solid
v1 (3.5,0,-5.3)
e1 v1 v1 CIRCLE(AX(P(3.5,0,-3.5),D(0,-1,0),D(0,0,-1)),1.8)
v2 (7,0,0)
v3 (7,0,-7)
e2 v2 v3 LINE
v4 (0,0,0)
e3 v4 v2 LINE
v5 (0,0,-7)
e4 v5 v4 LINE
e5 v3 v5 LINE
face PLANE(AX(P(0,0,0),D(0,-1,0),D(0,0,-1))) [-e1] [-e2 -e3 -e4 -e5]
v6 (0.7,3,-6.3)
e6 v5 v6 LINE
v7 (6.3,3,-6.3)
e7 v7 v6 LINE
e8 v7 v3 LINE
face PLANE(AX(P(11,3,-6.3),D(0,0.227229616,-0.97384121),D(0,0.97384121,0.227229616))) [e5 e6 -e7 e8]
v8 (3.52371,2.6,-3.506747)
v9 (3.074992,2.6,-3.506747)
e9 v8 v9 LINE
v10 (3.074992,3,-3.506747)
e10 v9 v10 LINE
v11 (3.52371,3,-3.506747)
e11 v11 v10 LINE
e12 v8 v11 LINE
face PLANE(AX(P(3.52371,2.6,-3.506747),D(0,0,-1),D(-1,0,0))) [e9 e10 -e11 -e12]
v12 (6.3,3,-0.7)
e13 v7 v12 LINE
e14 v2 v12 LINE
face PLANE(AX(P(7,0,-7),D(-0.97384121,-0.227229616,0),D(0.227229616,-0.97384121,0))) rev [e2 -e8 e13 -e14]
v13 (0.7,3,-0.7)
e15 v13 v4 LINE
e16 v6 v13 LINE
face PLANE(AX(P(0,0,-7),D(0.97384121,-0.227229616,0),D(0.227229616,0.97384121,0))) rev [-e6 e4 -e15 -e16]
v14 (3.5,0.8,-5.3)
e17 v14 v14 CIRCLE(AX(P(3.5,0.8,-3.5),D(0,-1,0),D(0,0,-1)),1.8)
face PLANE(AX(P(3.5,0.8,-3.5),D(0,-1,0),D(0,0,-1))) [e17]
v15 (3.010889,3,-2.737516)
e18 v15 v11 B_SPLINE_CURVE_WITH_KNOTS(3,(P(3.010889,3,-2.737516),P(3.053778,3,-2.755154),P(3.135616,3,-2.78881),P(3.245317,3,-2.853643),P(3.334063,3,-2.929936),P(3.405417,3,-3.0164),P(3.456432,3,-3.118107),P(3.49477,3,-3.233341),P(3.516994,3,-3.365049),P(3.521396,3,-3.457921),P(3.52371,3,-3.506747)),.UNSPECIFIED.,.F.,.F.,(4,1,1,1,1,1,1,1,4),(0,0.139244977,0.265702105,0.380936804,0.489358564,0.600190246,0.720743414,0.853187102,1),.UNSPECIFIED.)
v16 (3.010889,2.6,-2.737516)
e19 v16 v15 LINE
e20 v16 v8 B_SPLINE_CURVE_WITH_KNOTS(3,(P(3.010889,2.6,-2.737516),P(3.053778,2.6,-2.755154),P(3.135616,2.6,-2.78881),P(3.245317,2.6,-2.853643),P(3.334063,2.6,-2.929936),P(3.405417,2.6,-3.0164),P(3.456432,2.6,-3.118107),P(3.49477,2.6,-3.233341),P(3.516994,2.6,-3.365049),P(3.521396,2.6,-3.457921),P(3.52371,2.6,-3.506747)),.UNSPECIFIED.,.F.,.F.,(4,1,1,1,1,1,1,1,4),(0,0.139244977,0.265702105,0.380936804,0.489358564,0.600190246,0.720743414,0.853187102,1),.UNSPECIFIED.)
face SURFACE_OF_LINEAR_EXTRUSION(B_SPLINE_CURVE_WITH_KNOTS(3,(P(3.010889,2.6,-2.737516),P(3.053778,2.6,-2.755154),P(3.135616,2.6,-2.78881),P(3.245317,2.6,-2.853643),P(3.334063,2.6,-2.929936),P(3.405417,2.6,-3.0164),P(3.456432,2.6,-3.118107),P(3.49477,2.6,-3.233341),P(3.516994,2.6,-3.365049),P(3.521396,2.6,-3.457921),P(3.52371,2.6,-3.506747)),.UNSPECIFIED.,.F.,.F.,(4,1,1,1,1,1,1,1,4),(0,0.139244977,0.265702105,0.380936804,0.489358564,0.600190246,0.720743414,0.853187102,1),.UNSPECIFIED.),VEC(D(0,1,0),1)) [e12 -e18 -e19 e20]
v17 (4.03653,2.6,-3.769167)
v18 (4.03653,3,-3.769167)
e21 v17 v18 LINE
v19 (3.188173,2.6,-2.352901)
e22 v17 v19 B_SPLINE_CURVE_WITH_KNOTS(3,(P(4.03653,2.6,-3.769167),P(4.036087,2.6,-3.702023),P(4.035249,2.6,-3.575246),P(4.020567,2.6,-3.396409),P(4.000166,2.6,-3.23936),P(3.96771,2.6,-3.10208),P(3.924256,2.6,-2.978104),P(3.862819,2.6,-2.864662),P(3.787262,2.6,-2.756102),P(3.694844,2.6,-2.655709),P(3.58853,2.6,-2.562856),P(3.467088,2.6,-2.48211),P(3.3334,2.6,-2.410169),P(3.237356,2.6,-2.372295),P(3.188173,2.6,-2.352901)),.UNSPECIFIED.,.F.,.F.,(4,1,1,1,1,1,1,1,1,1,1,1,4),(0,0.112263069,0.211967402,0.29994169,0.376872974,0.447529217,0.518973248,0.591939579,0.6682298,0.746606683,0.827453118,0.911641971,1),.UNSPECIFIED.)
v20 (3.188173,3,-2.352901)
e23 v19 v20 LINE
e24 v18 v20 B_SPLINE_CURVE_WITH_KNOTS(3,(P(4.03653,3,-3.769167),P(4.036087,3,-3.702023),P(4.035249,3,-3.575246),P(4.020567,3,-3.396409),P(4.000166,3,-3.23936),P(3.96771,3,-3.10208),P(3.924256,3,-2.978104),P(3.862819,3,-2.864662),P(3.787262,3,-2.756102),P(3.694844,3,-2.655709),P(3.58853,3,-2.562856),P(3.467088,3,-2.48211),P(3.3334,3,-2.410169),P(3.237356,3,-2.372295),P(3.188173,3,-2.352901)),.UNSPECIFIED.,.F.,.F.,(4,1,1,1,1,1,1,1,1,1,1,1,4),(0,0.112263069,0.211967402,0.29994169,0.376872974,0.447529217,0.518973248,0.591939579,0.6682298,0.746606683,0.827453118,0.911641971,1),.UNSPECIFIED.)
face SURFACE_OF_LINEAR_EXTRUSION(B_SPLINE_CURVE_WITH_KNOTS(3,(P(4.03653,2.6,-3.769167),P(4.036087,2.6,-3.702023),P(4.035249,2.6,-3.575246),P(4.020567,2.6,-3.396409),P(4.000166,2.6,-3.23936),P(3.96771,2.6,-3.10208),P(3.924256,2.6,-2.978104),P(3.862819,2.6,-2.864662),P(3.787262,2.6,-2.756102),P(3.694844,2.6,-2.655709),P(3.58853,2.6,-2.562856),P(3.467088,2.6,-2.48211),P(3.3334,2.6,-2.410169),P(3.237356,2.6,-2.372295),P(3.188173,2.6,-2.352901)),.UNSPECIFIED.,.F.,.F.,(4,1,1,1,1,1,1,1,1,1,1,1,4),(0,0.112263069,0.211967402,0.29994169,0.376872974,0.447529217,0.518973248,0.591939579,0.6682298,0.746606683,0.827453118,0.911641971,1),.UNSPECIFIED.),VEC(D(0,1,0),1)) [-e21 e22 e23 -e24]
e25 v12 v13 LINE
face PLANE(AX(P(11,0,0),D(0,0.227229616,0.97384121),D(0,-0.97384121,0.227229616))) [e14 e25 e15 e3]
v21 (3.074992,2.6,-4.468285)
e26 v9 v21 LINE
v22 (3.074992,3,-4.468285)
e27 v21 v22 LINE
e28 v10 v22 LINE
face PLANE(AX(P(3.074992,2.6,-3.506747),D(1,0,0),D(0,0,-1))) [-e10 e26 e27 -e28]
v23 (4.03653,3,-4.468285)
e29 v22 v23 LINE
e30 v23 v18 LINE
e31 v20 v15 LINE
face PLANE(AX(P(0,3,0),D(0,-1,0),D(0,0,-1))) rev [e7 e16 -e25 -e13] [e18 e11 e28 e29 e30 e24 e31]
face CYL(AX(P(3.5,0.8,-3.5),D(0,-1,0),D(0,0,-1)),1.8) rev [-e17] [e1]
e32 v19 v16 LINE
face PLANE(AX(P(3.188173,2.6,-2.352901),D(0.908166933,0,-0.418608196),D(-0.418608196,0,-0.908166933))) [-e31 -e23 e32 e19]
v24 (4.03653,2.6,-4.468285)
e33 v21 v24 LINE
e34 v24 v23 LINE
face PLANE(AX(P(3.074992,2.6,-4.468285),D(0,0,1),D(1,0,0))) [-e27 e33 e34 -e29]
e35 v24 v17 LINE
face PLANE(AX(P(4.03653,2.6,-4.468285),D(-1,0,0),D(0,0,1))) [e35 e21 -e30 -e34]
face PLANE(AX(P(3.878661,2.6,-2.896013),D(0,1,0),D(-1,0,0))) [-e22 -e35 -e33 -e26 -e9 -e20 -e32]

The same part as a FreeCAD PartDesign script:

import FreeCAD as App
import Part
import Sketcher
from FreeCAD import Vector

doc = App.newDocument("Part")
params = doc.addObject("Spreadsheet::Sheet", "Params")
for row, (alias, value) in enumerate([
    ("sketch1_width", "7 mm"),
    ("pad1_length", "3 mm"),
    ("sketch2_height", "3 mm"),
    ("sketch2_width", "0.7 mm"),
    ("pocket1_length", "7 mm"),
    ("sketch3_width", "3 mm"),
    ("sketch3_height", "0.7 mm"),
    ("pocket2_length", "11 mm"),
    ("sketch4_diameter", "3.6 mm"),
    ("pocket3_length", "0.8 mm"),
    ("pocket4_length", "0.4 mm"),
], start=1):
    params.set(f"A{row}", alias)
    params.set(f"B{row}", "=" + value)
    params.setAlias(f"B{row}", alias)

body = doc.addObject("PartDesign::Body", "Body")

# Sketch on XZ plane
sketch1 = body.newObject("Sketcher::SketchObject", "Sketch")
sketch1.AttachmentSupport = (doc.getObject("XZ_Plane"), [""])
sketch1.MapMode = "FlatFace"
sketch1.addGeometry(Part.LineSegment(Vector(0, -7, 0), Vector(0, 0, 0)), False)
sketch1.addGeometry(Part.LineSegment(Vector(0, 0, 0), Vector(7, 0, 0)), False)
sketch1.addGeometry(Part.LineSegment(Vector(7, 0, 0), Vector(7, -7, 0)), False)
sketch1.addGeometry(Part.LineSegment(Vector(7, -7, 0), Vector(0, -7, 0)), False)
sketch1.addConstraint(Sketcher.Constraint("Coincident", 0, 2, 1, 1))
sketch1.addConstraint(Sketcher.Constraint("Coincident", 1, 2, 2, 1))
sketch1.addConstraint(Sketcher.Constraint("Coincident", 2, 2, 3, 1))
sketch1.addConstraint(Sketcher.Constraint("Coincident", 3, 2, 0, 1))
sketch1.addConstraint(Sketcher.Constraint("Vertical", 0))
sketch1.addConstraint(Sketcher.Constraint("Horizontal", 1))
sketch1.addConstraint(Sketcher.Constraint("Vertical", 2))
sketch1.addConstraint(Sketcher.Constraint("Horizontal", 3))
sketch1.addConstraint(Sketcher.Constraint("Coincident", 0, 2, -1, 1))
sketch1.addConstraint(Sketcher.Constraint("Equal", 3, 0))
sketch1.addConstraint(Sketcher.Constraint("DistanceX", 1, 1, 1, 2, 7.0))
sketch1.setExpression("Constraints[10]", "Params.sketch1_width")
pad1 = body.newObject("PartDesign::Pad", "Pad")
pad1.Profile = sketch1
pad1.setExpression("Length", "Params.pad1_length")
pad1.Reversed = True

# Sketch on XY plane
sketch2 = body.newObject("Sketcher::SketchObject", "Sketch001")
sketch2.AttachmentSupport = (doc.getObject("XY_Plane"), [""])
sketch2.MapMode = "FlatFace"
sketch2.addGeometry(Part.LineSegment(Vector(0, 0, 0), Vector(0.7, 3, 0)), False)
sketch2.addGeometry(Part.LineSegment(Vector(0.7, 3, 0), Vector(0, 3, 0)), False)
sketch2.addGeometry(Part.LineSegment(Vector(0, 3, 0), Vector(0, 0, 0)), False)
sketch2.addGeometry(Part.LineSegment(Vector(6.3, 3, 0), Vector(7, 0, 0)), False)
sketch2.addGeometry(Part.LineSegment(Vector(7, 0, 0), Vector(7, 3, 0)), False)
sketch2.addGeometry(Part.LineSegment(Vector(7, 3, 0), Vector(6.3, 3, 0)), False)
sketch2.addConstraint(Sketcher.Constraint("Coincident", 0, 2, 1, 1))
sketch2.addConstraint(Sketcher.Constraint("Coincident", 1, 2, 2, 1))
sketch2.addConstraint(Sketcher.Constraint("Coincident", 2, 2, 0, 1))
sketch2.addConstraint(Sketcher.Constraint("Coincident", 3, 2, 4, 1))
sketch2.addConstraint(Sketcher.Constraint("Coincident", 4, 2, 5, 1))
sketch2.addConstraint(Sketcher.Constraint("Coincident", 5, 2, 3, 1))
sketch2.addConstraint(Sketcher.Constraint("Horizontal", 1))
sketch2.addConstraint(Sketcher.Constraint("Vertical", 2))
sketch2.addConstraint(Sketcher.Constraint("Vertical", 4))
sketch2.addConstraint(Sketcher.Constraint("Horizontal", 5))
sketch2.addConstraint(Sketcher.Constraint("Coincident", 2, 2, -1, 1))
sketch2.addConstraint(Sketcher.Constraint("PointOnObject", 3, 2, -1))
sketch2.addConstraint(Sketcher.Constraint("Horizontal", 1, 2, 4, 2))
sketch2.addConstraint(Sketcher.Constraint("Equal", 1, 5))
sketch2.addConstraint(Sketcher.Constraint("DistanceY", 2, 2, 2, 1, 3.0))
sketch2.addConstraint(Sketcher.Constraint("DistanceX", 1, 2, 1, 1, 0.7))
sketch2.addConstraint(Sketcher.Constraint("DistanceX", -1, 1, 3, 2, 7.0))
sketch2.setExpression("Constraints[14]", "Params.sketch2_height")
sketch2.setExpression("Constraints[15]", "Params.sketch2_width")
pocket1 = body.newObject("PartDesign::Pocket", "Pocket")
pocket1.Profile = sketch2
pocket1.setExpression("Length", "Params.pocket1_length")

# Sketch on YZ plane
sketch3 = body.newObject("Sketcher::SketchObject", "Sketch002")
sketch3.AttachmentSupport = (doc.getObject("YZ_Plane"), [""])
sketch3.MapMode = "FlatFace"
sketch3.addGeometry(Part.LineSegment(Vector(0, 0, 0), Vector(3, -0.7, 0)), False)
sketch3.addGeometry(Part.LineSegment(Vector(3, -0.7, 0), Vector(3, 0, 0)), False)
sketch3.addGeometry(Part.LineSegment(Vector(3, 0, 0), Vector(0, 0, 0)), False)
sketch3.addGeometry(Part.LineSegment(Vector(3, -7, 0), Vector(3, -6.3, 0)), False)
sketch3.addGeometry(Part.LineSegment(Vector(3, -6.3, 0), Vector(0, -7, 0)), False)
sketch3.addGeometry(Part.LineSegment(Vector(0, -7, 0), Vector(3, -7, 0)), False)
sketch3.addConstraint(Sketcher.Constraint("Coincident", 0, 2, 1, 1))
sketch3.addConstraint(Sketcher.Constraint("Coincident", 1, 2, 2, 1))
sketch3.addConstraint(Sketcher.Constraint("Coincident", 2, 2, 0, 1))
sketch3.addConstraint(Sketcher.Constraint("Coincident", 3, 2, 4, 1))
sketch3.addConstraint(Sketcher.Constraint("Coincident", 4, 2, 5, 1))
sketch3.addConstraint(Sketcher.Constraint("Coincident", 5, 2, 3, 1))
sketch3.addConstraint(Sketcher.Constraint("Vertical", 1))
sketch3.addConstraint(Sketcher.Constraint("Horizontal", 2))
sketch3.addConstraint(Sketcher.Constraint("Vertical", 3))
sketch3.addConstraint(Sketcher.Constraint("Horizontal", 5))
sketch3.addConstraint(Sketcher.Constraint("Coincident", 2, 2, -1, 1))
sketch3.addConstraint(Sketcher.Constraint("PointOnObject", 4, 2, -2))
sketch3.addConstraint(Sketcher.Constraint("Vertical", 1, 2, 3, 2))
sketch3.addConstraint(Sketcher.Constraint("Equal", 1, 3))
sketch3.addConstraint(Sketcher.Constraint("DistanceX", 2, 2, 2, 1, 3.0))
sketch3.addConstraint(Sketcher.Constraint("DistanceY", 1, 1, 1, 2, 0.7))
sketch3.addConstraint(Sketcher.Constraint("DistanceY", 4, 2, -1, 1, 7.0))
sketch3.setExpression("Constraints[14]", "Params.sketch3_width")
sketch3.setExpression("Constraints[15]", "Params.sketch3_height")
pocket2 = body.newObject("PartDesign::Pocket", "Pocket001")
pocket2.Profile = sketch3
pocket2.setExpression("Length", "Params.pocket2_length")
pocket2.Reversed = True

# Sketch on XZ plane
sketch4 = body.newObject("Sketcher::SketchObject", "Sketch003")
sketch4.AttachmentSupport = (doc.getObject("XZ_Plane"), [""])
sketch4.MapMode = "FlatFace"
sketch4.addGeometry(Part.Circle(Vector(3.5, -3.5, 0), Vector(0, 0, 1), 1.8), False)
sketch4.addConstraint(Sketcher.Constraint("Diameter", 0, 3.6))
sketch4.addConstraint(Sketcher.Constraint("DistanceX", -1, 1, 0, 3, 3.5))
sketch4.addConstraint(Sketcher.Constraint("DistanceY", 0, 3, -1, 1, 3.5))
sketch4.setExpression("Constraints[0]", "Params.sketch4_diameter")
pocket3 = body.newObject("PartDesign::Pocket", "Pocket002")
pocket3.Profile = sketch4
pocket3.setExpression("Length", "Params.pocket3_length")

# Sketch on XZ plane
sketch5 = body.newObject("Sketcher::SketchObject", "Sketch004")
sketch5.AttachmentSupport = (doc.getObject("XZ_Plane"), [""])
sketch5.MapMode = "FlatFace"
sketch5.AttachmentOffset = App.Placement(Vector(0, 0, -3), App.Rotation())
sketch5.addGeometry(Part.LineSegment(Vector(4.03653, -4.468285, 0), Vector(3.074992, -4.468285, 0)), False)
sketch5.addGeometry(Part.LineSegment(Vector(3.074992, -4.468285, 0), Vector(3.074992, -3.506747, 0)), False)
sketch5.addGeometry(Part.LineSegment(Vector(3.074992, -3.506747, 0), Vector(3.52371, -3.506747, 0)), False)
sketch5.addGeometry(Part.BSplineCurve([Vector(3.010889, -2.737516, 0), Vector(3.053778, -2.755154, 0), Vector(3.135616, -2.78881, 0), Vector(3.245317, -2.853643, 0), Vector(3.334063, -2.929936, 0), Vector(3.405417, -3.0164, 0), Vector(3.456432, -3.118107, 0), Vector(3.49477, -3.233341, 0), Vector(3.516994, -3.365049, 0), Vector(3.521396, -3.457921, 0), Vector(3.52371, -3.506747, 0)], [4, 1, 1, 1, 1, 1, 1, 1, 4], [0, 1.113959817, 2.125616841, 3.047494432, 3.914868512, 4.801521967, 5.765947312, 6.825496818, 8], False, 3, [1, 1, 1, 1, 1, 1, 1, 1, 1, 1, 1], False), False)
sketch5.addGeometry(Part.LineSegment(Vector(3.010889, -2.737516, 0), Vector(3.188173, -2.352901, 0)), False)
sketch5.addGeometry(Part.BSplineCurve([Vector(4.03653, -3.769167, 0), Vector(4.036087, -3.702023, 0), Vector(4.035249, -3.575246, 0), Vector(4.020567, -3.396409, 0), Vector(4.000166, -3.23936, 0), Vector(3.96771, -3.10208, 0), Vector(3.924256, -2.978104, 0), Vector(3.862819, -2.864662, 0), Vector(3.787262, -2.756102, 0), Vector(3.694844, -2.655709, 0), Vector(3.58853, -2.562856, 0), Vector(3.467088, -2.48211, 0), Vector(3.3334, -2.410169, 0), Vector(3.237356, -2.372295, 0), Vector(3.188173, -2.352901, 0)], [4, 1, 1, 1, 1, 1, 1, 1, 1, 1, 1, 1, 4], [0, 1.347156832, 2.543608823, 3.599300285, 4.522475688, 5.370350604, 6.227678973, 7.103274953, 8.018757603, 8.959280198, 9.929437417, 10.939703653, 12], False, 3, [1, 1, 1, 1, 1, 1, 1, 1, 1, 1, 1, 1, 1, 1, 1], False), False)
sketch5.addGeometry(Part.LineSegment(Vector(4.03653, -3.769167, 0), Vector(4.03653, -4.468285, 0)), False)
sketch5.addConstraint(Sketcher.Constraint("Block", 3))
sketch5.addConstraint(Sketcher.Constraint("Block", 5))
sketch5.addConstraint(Sketcher.Constraint("Coincident", 0, 2, 1, 1))
sketch5.addConstraint(Sketcher.Constraint("Coincident", 1, 2, 2, 1))
sketch5.addConstraint(Sketcher.Constraint("Coincident", 2, 2, 3, 2))
sketch5.addConstraint(Sketcher.Constraint("Coincident", 3, 1, 4, 1))
sketch5.addConstraint(Sketcher.Constraint("Coincident", 4, 2, 5, 2))
sketch5.addConstraint(Sketcher.Constraint("Coincident", 5, 1, 6, 1))
sketch5.addConstraint(Sketcher.Constraint("Coincident", 6, 2, 0, 1))
sketch5.addConstraint(Sketcher.Constraint("Horizontal", 0))
sketch5.addConstraint(Sketcher.Constraint("Vertical", 1))
sketch5.addConstraint(Sketcher.Constraint("Horizontal", 2))
sketch5.addConstraint(Sketcher.Constraint("Vertical", 6))
sketch5.addConstraint(Sketcher.Constraint("Equal", 0, 1))
sketch5.addConstraint(Sketcher.Constraint("DistanceX", 0, 2, 0, 1, 0.961538))
pocket4 = body.newObject("PartDesign::Pocket", "Pocket003")
pocket4.Profile = sketch5
pocket4.setExpression("Length", "Params.pocket4_length")
pocket4.Reversed = True

doc.recompute()
